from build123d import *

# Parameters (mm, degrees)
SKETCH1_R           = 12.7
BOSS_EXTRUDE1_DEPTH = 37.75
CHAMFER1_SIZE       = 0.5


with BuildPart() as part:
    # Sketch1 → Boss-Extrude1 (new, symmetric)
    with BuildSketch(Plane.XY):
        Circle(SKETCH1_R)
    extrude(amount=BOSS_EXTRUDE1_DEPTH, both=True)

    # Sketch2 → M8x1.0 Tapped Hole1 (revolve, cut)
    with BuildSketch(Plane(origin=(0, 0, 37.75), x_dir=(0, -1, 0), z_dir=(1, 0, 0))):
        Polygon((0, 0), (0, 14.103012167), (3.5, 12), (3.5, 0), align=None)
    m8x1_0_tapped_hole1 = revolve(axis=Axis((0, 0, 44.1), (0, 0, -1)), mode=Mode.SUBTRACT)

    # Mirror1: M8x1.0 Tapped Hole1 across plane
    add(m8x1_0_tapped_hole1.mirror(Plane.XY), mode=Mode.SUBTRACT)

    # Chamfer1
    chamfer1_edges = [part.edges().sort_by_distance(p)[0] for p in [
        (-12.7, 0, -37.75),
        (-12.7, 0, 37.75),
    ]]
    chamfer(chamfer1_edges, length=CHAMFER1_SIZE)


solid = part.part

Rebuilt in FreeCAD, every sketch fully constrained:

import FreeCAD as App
import Part
import Sketcher

V = App.Vector
Q = App.Units.Quantity


def edges_at(feature, points):
    """Names of the edges that pass closest to the given points."""
    edges = feature.Shape.Edges
    near = lambda p: min(range(len(edges)), key=lambda i: edges[i].distToShape(Part.Vertex(*p))[0])
    return sorted({f"Edge{near(p) + 1}" for p in points})


def add_polygon(sketch, points):
    """Adds a closed chain of lines whose ends are joined by coincident constraints."""
    first, n = sketch.GeometryCount, len(points)
    for a, b in zip(points, points[1:] + points[:1]):
        sketch.addGeometry(Part.LineSegment(App.Vector(*a, 0), App.Vector(*b, 0)), False)
    for i in range(n):
        sketch.addConstraint(Sketcher.Constraint("Coincident", first + i, 2, first + (i + 1) % n, 1))

doc = App.newDocument("Part")
body = doc.addObject("PartDesign::Body", "Body")

# Sketch on XY plane
sketch1 = body.newObject("Sketcher::SketchObject", "Sketch")
sketch1.AttachmentSupport = (doc.getObject("XY_Plane"), [""])
sketch1.MapMode = "FlatFace"
sketch1.addGeometry(Part.Circle(V(0, 0, 0), V(0, 0, 1), 12.7), False)
sketch1.addConstraint([
    Sketcher.Constraint("Coincident", 0, 3, -1, 1),
    Sketcher.Constraint("Diameter", 0, Q("25.4 mm")),
])
pad1 = body.newObject("PartDesign::Pad", "Pad")
pad1.Profile = sketch1
pad1.Length = 75.5
pad1.Midplane = True

# Sketch on YZ plane
sketch2 = body.newObject("Sketcher::SketchObject", "Sketch001")
sketch2.AttachmentSupport = (doc.getObject("YZ_Plane"), [""])
sketch2.MapMode = "FlatFace"
add_polygon(sketch2, [(0, 23.646988), (0, 37.75), (-3.5, 37.75), (-3.5, 25.75)])  # lines 0-3
sketch2.addConstraint([
    Sketcher.Constraint("Vertical", 0),
    Sketcher.Constraint("Horizontal", 1),
    Sketcher.Constraint("Vertical", 2),
    Sketcher.Constraint("PointOnObject", 0, 2, -2),
    Sketcher.Constraint("DistanceY", 2, 2, 2, 1, Q("12 mm")),
    Sketcher.Constraint("Angle", 3, Q("-31 deg")),
    Sketcher.Constraint("DistanceX", 1, 2, 1, 1, Q("3.5 mm")),
    Sketcher.Constraint("DistanceY", -1, 1, 0, 2, Q("37.75 mm")),
])
groove = body.newObject("PartDesign::Groove", "Groove")
groove.Profile = sketch2
groove.ReferenceAxis = (sketch2, ["V_Axis"])
groove.Angle = 360
doc.recompute()

mirrored = body.newObject("PartDesign::Mirrored", "Mirrored")
mirrored.Originals = [groove]
mirrored.MirrorPlane = (doc.getObject("XY_Plane"), [""])
body.Tip = mirrored
doc.recompute()

chamfer = body.newObject("PartDesign::Chamfer", "Chamfer")
chamfer.Base = (mirrored, edges_at(mirrored, [(-12.7, 0, -37.75), (-12.7, 0, 37.75)]))
chamfer.Size = 0.5

doc.recompute()
